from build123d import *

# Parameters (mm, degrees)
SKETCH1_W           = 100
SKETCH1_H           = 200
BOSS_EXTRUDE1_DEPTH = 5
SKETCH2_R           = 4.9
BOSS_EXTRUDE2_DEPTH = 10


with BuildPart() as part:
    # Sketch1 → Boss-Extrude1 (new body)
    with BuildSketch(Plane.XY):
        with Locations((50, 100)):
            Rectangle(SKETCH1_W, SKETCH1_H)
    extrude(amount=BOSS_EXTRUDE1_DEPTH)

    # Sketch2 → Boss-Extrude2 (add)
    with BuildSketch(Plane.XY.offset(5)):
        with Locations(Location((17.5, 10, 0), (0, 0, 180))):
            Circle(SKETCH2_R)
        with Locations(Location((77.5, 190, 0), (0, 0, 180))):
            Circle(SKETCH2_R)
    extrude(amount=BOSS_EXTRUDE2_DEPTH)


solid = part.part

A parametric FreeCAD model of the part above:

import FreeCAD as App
import Part
import Sketcher

V = App.Vector


def add_polygon(sketch, points):
    """Adds a closed chain of lines whose ends are joined by coincident constraints."""
    first, n = sketch.GeometryCount, len(points)
    for a, b in zip(points, points[1:] + points[:1]):
        sketch.addGeometry(Part.LineSegment(App.Vector(*a, 0), App.Vector(*b, 0)), False)
    for i in range(n):
        sketch.addConstraint(Sketcher.Constraint("Coincident", first + i, 2, first + (i + 1) % n, 1))

doc = App.newDocument("Part")
body = doc.addObject("PartDesign::Body", "Body")

sketch1 = body.newObject("Sketcher::SketchObject", "Sketch")
sketch1.AttachmentSupport = (doc.getObject("XY_Plane"), [""])
sketch1.MapMode = "FlatFace"
add_polygon(sketch1, [(0, 200), (0, 0), (100, 0), (100, 200)])
sketch1.addConstraint([
    Sketcher.Constraint("Vertical", 0),
    Sketcher.Constraint("Horizontal", 1),
    Sketcher.Constraint("Vertical", 2),
    Sketcher.Constraint("Horizontal", 3),
    Sketcher.Constraint("Coincident", 0, 2, -1, 1),
    Sketcher.Constraint("DistanceX", 1, 1, 1, 2, 100.0),
    Sketcher.Constraint("DistanceY", 0, 2, 0, 1, 200.0),
])
pad1 = body.newObject("PartDesign::Pad", "Pad")
pad1.Profile = sketch1
pad1.Length = 5

sketch2 = body.newObject("Sketcher::SketchObject", "Sketch001")
sketch2.AttachmentSupport = (doc.getObject("XY_Plane"), [""])
sketch2.MapMode = "FlatFace"
sketch2.AttachmentOffset = App.Placement(V(0, 0, 5), App.Rotation())
sketch2.addGeometry([
    Part.Circle(V(17.5, 10, 0), V(0, 0, 1), 4.9),
    Part.Circle(V(77.5, 190, 0), V(0, 0, 1), 4.9),
], False)
sketch2.addConstraint([
    Sketcher.Constraint("Equal", 0, 1),
    Sketcher.Constraint("Diameter", 0, 9.8),
    Sketcher.Constraint("DistanceY", -1, 1, 0, 3, 10.0),
    Sketcher.Constraint("DistanceY", -1, 1, 1, 3, 190.0),
    Sketcher.Constraint("DistanceX", 0, 3, 1, 3, 60.0),
    Sketcher.Constraint("DistanceX", -1, 1, 0, 3, 17.5),
])
pad2 = body.newObject("PartDesign::Pad", "Pad001")
pad2.Profile = sketch2
pad2.Length = 10

doc.recompute()
